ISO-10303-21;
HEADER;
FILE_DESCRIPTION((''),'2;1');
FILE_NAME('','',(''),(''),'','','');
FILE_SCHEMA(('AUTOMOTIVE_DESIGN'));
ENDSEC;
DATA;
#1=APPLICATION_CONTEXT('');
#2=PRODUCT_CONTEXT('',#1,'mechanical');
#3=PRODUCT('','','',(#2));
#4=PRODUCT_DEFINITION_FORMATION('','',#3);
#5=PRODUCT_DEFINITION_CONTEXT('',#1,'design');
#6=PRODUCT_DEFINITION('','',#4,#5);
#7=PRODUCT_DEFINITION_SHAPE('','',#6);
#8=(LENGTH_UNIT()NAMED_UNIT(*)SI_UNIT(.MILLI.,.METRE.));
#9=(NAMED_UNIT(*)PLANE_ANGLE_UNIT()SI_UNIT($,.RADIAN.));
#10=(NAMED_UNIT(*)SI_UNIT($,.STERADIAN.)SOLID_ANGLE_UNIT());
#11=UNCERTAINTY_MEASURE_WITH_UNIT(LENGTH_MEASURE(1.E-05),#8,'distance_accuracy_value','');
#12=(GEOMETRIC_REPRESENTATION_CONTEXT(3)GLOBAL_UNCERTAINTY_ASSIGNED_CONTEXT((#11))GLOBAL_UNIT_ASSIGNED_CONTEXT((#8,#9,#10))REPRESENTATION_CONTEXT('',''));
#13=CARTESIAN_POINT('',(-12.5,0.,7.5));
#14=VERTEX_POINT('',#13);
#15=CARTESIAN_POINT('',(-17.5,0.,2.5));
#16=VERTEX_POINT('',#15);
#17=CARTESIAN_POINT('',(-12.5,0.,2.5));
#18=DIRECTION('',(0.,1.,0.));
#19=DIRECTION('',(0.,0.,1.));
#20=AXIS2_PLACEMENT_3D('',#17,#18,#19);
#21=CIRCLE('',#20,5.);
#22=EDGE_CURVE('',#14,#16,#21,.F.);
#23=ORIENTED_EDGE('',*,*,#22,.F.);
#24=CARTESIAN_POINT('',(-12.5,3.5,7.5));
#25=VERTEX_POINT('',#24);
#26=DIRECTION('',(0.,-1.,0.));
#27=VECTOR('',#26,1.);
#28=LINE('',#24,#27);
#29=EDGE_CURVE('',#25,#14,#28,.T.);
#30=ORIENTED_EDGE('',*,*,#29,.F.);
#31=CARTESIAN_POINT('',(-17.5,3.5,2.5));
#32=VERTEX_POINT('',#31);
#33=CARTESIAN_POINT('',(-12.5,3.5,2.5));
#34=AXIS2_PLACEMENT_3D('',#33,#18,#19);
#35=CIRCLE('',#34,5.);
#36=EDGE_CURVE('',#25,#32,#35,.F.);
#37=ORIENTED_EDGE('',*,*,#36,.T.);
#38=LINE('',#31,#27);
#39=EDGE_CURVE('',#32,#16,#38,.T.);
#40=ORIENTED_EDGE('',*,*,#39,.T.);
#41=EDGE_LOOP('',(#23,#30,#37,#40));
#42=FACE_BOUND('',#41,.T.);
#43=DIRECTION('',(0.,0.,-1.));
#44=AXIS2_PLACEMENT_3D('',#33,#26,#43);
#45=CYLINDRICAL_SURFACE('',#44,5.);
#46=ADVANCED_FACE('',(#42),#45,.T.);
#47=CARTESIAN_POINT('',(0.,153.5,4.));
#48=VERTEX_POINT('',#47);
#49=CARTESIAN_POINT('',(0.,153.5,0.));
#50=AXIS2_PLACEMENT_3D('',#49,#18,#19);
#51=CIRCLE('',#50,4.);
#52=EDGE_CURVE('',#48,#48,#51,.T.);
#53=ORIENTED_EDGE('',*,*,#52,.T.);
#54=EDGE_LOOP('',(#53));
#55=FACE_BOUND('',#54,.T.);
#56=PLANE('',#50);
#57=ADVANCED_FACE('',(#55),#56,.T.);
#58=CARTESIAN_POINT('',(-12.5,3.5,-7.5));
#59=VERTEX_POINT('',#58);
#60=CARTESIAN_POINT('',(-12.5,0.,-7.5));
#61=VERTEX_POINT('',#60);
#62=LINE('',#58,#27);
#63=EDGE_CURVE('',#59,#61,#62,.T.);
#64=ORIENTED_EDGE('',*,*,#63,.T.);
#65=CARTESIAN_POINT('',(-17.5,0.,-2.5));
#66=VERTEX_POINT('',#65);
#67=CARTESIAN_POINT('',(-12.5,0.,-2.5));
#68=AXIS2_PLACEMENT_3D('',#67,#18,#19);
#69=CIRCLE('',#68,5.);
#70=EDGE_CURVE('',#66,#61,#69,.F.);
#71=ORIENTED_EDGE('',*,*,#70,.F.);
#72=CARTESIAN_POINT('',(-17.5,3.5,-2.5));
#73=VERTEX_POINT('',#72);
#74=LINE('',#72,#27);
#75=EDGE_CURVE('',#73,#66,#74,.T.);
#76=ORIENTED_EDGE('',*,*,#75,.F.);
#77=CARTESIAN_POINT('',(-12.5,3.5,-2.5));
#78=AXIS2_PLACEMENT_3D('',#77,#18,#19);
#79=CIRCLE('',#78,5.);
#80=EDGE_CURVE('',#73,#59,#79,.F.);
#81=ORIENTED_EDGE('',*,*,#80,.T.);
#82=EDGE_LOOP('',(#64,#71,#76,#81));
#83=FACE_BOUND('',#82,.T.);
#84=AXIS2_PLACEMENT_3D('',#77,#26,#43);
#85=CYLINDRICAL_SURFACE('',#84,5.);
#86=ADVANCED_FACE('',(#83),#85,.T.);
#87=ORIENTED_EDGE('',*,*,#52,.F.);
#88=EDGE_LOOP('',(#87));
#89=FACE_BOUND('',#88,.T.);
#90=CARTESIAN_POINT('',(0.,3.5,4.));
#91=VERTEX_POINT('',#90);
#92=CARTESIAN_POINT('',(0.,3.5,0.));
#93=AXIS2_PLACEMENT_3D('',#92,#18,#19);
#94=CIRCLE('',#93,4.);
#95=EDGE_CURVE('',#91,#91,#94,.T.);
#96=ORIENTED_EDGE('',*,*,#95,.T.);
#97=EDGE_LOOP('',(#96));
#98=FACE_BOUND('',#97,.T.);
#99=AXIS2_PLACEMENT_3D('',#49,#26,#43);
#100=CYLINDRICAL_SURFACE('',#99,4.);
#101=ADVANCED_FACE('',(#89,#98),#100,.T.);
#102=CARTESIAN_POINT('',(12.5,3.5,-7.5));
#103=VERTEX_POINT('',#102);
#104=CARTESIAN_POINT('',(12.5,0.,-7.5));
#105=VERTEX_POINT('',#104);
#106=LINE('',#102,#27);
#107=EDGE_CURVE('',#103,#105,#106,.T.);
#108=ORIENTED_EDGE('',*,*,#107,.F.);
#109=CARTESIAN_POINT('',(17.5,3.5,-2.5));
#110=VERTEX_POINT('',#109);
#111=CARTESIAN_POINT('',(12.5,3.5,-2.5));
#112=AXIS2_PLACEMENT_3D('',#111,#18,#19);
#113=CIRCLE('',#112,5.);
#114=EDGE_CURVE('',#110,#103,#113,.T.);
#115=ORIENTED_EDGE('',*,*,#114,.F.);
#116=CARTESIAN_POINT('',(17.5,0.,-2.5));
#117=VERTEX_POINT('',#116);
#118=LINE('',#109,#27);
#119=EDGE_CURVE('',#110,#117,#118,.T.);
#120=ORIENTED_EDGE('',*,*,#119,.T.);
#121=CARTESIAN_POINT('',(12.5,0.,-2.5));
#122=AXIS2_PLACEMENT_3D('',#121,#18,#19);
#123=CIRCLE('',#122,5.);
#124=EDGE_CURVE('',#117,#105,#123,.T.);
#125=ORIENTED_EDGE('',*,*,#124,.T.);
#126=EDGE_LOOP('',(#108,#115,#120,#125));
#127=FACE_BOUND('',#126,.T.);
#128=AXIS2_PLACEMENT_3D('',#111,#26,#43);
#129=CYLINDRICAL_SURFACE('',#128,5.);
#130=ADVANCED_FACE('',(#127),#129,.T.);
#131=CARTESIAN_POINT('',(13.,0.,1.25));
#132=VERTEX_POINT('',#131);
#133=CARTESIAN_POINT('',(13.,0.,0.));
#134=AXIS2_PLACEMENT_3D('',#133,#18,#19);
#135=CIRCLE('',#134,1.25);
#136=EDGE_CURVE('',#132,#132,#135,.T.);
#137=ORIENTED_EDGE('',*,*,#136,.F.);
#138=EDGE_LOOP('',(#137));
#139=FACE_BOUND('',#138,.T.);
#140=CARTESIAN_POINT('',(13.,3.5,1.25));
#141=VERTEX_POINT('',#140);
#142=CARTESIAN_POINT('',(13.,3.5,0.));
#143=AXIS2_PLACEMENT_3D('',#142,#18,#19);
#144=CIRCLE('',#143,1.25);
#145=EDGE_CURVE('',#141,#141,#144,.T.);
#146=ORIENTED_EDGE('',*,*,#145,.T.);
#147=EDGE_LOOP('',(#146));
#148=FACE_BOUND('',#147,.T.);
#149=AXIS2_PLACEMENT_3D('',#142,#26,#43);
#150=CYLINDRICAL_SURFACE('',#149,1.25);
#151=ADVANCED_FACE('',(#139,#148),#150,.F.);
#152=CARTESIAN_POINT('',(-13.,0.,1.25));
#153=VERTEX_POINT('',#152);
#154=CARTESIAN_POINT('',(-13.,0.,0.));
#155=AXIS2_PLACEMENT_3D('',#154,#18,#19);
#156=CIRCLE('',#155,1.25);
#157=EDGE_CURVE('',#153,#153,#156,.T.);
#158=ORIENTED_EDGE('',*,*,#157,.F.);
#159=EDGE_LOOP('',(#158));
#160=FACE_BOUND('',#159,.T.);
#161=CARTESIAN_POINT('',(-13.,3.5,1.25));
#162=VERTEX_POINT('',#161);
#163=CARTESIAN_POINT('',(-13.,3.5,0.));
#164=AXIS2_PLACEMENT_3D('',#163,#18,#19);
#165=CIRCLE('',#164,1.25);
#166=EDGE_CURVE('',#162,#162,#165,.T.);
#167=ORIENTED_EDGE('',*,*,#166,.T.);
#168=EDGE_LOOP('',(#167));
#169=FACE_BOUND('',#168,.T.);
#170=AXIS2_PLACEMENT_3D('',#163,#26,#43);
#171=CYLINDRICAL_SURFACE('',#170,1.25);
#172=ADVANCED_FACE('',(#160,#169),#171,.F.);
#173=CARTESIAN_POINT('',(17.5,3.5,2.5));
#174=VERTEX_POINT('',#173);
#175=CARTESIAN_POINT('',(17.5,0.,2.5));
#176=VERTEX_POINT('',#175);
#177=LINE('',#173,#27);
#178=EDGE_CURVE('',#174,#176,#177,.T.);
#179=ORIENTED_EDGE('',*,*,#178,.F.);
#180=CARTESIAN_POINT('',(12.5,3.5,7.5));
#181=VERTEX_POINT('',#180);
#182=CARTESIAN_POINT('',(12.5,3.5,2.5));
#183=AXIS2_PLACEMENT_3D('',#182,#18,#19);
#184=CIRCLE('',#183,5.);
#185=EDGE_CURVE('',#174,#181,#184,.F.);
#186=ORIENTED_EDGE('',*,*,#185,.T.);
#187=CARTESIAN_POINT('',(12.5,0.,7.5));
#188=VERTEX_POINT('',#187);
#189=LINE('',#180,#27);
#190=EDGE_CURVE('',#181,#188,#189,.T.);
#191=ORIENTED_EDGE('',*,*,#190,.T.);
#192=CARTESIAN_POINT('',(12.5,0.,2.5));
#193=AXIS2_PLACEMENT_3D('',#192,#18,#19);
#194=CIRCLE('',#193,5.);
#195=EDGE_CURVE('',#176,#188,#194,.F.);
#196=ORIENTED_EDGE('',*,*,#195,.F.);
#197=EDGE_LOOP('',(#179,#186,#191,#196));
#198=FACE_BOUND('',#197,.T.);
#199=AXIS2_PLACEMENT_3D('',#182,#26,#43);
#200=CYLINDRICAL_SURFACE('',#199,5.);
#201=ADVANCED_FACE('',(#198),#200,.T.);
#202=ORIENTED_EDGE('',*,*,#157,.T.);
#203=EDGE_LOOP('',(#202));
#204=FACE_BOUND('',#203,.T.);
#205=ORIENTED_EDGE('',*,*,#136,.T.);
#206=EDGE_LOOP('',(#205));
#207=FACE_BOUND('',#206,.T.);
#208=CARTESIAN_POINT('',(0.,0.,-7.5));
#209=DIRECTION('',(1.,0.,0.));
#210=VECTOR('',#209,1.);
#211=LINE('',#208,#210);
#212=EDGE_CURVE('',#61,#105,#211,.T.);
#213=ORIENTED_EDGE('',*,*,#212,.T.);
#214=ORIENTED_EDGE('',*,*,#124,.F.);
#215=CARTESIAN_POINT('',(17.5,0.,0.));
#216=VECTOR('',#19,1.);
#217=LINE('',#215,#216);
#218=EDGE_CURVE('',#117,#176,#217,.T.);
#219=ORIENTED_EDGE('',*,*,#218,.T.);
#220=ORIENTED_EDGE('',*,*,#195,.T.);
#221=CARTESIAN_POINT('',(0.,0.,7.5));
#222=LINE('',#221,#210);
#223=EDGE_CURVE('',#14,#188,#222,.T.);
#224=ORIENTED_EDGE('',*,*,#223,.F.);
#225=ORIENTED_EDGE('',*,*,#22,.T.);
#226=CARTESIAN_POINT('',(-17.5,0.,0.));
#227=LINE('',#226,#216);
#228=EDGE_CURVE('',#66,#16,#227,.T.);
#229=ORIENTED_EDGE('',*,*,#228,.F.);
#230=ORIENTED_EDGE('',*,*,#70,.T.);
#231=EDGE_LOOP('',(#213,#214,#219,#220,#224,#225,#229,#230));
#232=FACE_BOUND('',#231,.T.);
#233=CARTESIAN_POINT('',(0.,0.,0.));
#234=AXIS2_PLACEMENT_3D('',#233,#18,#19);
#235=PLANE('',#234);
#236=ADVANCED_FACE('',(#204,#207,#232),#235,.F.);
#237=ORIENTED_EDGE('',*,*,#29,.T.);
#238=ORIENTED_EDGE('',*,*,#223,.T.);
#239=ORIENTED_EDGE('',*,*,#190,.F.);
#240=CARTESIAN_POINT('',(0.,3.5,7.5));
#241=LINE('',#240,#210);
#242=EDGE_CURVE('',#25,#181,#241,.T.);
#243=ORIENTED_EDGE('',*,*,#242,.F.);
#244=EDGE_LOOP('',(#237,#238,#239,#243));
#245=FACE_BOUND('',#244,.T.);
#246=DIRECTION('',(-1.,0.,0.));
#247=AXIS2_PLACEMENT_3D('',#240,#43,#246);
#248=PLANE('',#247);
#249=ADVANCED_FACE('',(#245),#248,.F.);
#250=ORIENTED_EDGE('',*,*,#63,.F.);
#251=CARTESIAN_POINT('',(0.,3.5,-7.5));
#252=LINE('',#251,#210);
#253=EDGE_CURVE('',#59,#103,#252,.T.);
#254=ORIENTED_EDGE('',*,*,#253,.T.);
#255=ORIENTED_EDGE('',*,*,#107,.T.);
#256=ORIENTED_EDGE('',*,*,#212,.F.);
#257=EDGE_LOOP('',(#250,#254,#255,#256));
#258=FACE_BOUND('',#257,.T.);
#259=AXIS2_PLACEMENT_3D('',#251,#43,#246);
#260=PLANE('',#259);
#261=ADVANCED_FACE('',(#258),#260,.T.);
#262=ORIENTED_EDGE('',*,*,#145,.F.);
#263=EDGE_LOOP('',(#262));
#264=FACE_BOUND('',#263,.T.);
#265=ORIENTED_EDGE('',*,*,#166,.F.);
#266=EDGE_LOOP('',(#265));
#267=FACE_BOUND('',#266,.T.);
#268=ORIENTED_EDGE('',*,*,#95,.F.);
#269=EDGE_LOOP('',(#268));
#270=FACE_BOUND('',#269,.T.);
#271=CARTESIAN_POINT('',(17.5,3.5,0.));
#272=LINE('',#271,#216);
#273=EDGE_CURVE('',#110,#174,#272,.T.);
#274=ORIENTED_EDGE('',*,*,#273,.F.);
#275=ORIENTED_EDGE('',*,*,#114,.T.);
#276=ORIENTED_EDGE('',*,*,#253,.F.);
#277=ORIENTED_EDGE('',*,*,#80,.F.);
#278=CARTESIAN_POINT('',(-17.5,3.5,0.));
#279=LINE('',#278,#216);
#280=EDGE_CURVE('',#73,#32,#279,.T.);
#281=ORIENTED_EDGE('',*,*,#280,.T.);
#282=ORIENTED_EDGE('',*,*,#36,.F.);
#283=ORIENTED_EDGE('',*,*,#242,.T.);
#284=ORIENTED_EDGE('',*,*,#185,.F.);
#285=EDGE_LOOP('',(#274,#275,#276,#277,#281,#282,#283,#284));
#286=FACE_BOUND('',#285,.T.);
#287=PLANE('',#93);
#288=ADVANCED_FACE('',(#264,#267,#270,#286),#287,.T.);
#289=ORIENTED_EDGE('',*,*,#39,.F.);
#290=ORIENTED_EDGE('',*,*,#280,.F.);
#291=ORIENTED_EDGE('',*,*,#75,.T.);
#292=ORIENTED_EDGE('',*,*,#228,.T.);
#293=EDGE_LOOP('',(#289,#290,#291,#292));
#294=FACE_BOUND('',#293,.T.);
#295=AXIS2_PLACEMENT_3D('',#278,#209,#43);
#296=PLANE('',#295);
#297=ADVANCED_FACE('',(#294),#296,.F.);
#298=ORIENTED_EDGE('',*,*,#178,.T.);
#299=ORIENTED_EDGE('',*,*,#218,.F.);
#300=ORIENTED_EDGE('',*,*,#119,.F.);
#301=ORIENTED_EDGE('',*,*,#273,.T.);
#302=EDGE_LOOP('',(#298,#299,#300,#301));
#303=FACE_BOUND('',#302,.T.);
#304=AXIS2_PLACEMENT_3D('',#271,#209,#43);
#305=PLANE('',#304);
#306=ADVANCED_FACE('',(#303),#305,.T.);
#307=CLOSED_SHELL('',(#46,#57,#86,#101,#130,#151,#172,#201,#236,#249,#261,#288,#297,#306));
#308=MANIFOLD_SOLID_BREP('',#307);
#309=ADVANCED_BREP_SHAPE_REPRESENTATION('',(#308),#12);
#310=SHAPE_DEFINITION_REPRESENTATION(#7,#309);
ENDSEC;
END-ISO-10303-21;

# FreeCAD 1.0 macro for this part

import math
import FreeCAD as App
import Part
import Sketcher
Q = App.Units.Quantity

doc = App.newDocument("Part")
params = doc.addObject("Spreadsheet::Sheet", "Params")
for row, (alias, value) in enumerate([
    ("sketch1_radius", "5 mm"),
    ("sketch1_diameter", "2.5 mm"),
    ("sketch1_width", "25 mm"),
    ("sketch1_height", "5 mm"),
    ("pad1_length", "3.5 mm"),
    ("sketch2_diameter", "8 mm"),
    ("pad2_length", "150 mm"),
], start=1):
    params.set(f"A{row}", alias)
    params.set(f"B{row}", "=" + value)
    params.setAlias(f"B{row}", alias)

body = doc.addObject("PartDesign::Body", "Body")

sketch1 = body.newObject("Sketcher::SketchObject", "Sketch")
sketch1.AttachmentSupport = (doc.getObject("XZ_Plane"), [""])
sketch1.MapMode = "FlatFace"
sketch1.addGeometry([
    Part.LineSegment(App.Vector(17.5, 2.5, 0), App.Vector(17.5, -2.5, 0)),
    Part.ArcOfCircle(Part.Circle(App.Vector(12.5, -2.5, 0), App.Vector(0, 0, 1), 5), math.radians(-90), math.radians(0)),
    Part.LineSegment(App.Vector(12.5, -7.5, 0), App.Vector(-12.5, -7.5, 0)),
    Part.ArcOfCircle(Part.Circle(App.Vector(-12.5, -2.5, 0), App.Vector(0, 0, 1), 5), math.radians(180), math.radians(270)),
    Part.LineSegment(App.Vector(-17.5, -2.5, 0), App.Vector(-17.5, 2.5, 0)),
    Part.ArcOfCircle(Part.Circle(App.Vector(-12.5, 2.5, 0), App.Vector(0, 0, 1), 5), math.radians(90), math.radians(180)),
    Part.LineSegment(App.Vector(-12.5, 7.5, 0), App.Vector(12.5, 7.5, 0)),
    Part.ArcOfCircle(Part.Circle(App.Vector(12.5, 2.5, 0), App.Vector(0, 0, 1), 5), math.radians(0), math.radians(90)),
    Part.Circle(App.Vector(13, 0, 0), App.Vector(0, 0, 1), 1.2),
    Part.Circle(App.Vector(-13, 0, 0), App.Vector(0, 0, 1), 1.2),
], False)
sketch1.addConstraint([
    Sketcher.Constraint("Tangent", 0, 2, 1, 2),
    Sketcher.Constraint("Tangent", 1, 1, 2, 1),
    Sketcher.Constraint("Tangent", 2, 2, 3, 2),
    Sketcher.Constraint("Tangent", 3, 1, 4, 1),
    Sketcher.Constraint("Tangent", 4, 2, 5, 2),
    Sketcher.Constraint("Tangent", 5, 1, 6, 1),
    Sketcher.Constraint("Tangent", 6, 2, 7, 2),
    Sketcher.Constraint("Tangent", 7, 1, 0, 1),
    Sketcher.Constraint("Vertical", 0),
    Sketcher.Constraint("Horizontal", 2),
    Sketcher.Constraint("Vertical", 4),
    Sketcher.Constraint("Horizontal", 6),
    Sketcher.Constraint("Equal", 1, 3),
    Sketcher.Constraint("Equal", 3, 5),
    Sketcher.Constraint("Equal", 5, 7),
    Sketcher.Constraint("Equal", 8, 9),
    Sketcher.Constraint("Symmetric", 1, 3, 5, 3, -1, 1),
    Sketcher.Constraint("Symmetric", 8, 3, 9, 3, -1, 1),
    Sketcher.Constraint("PointOnObject", 8, 3, -1),
    Sketcher.Constraint("Radius", 1, Q("5 mm")),
    Sketcher.Constraint("Diameter", 8, Q("2.5 mm")),
    Sketcher.Constraint("DistanceX", 2, 2, 2, 1, Q("25 mm")),
    Sketcher.Constraint("DistanceY", 0, 2, 0, 1, Q("5 mm")),
    Sketcher.Constraint("DistanceX", -1, 1, 8, 3, Q("13 mm")),
])
sketch1.setExpression("Constraints[19]", "Params.sketch1_radius")
sketch1.setExpression("Constraints[20]", "Params.sketch1_diameter")
sketch1.setExpression("Constraints[21]", "Params.sketch1_width")
sketch1.setExpression("Constraints[22]", "Params.sketch1_height")
pad1 = body.newObject("PartDesign::Pad", "Pad")
pad1.Profile = sketch1
pad1.setExpression("Length", "Params.pad1_length")
pad1.Reversed = True

sketch2 = body.newObject("Sketcher::SketchObject", "Sketch001")
sketch2.AttachmentSupport = (doc.getObject("XZ_Plane"), [""])
sketch2.MapMode = "FlatFace"
sketch2.AttachmentOffset = App.Placement(App.Vector(0, 0, -3.5), App.Rotation())
sketch2.addGeometry(Part.Circle(App.Vector(0, 0, 0), App.Vector(0, 0, 1), 4), False)
sketch2.addConstraint([
    Sketcher.Constraint("Coincident", 0, 3, -1, 1),
    Sketcher.Constraint("Diameter", 0, Q("8 mm")),
])
sketch2.setExpression("Constraints[1]", "Params.sketch2_diameter")
pad2 = body.newObject("PartDesign::Pad", "Pad001")
pad2.Profile = sketch2
pad2.setExpression("Length", "Params.pad2_length")
pad2.Reversed = True

doc.recompute()
